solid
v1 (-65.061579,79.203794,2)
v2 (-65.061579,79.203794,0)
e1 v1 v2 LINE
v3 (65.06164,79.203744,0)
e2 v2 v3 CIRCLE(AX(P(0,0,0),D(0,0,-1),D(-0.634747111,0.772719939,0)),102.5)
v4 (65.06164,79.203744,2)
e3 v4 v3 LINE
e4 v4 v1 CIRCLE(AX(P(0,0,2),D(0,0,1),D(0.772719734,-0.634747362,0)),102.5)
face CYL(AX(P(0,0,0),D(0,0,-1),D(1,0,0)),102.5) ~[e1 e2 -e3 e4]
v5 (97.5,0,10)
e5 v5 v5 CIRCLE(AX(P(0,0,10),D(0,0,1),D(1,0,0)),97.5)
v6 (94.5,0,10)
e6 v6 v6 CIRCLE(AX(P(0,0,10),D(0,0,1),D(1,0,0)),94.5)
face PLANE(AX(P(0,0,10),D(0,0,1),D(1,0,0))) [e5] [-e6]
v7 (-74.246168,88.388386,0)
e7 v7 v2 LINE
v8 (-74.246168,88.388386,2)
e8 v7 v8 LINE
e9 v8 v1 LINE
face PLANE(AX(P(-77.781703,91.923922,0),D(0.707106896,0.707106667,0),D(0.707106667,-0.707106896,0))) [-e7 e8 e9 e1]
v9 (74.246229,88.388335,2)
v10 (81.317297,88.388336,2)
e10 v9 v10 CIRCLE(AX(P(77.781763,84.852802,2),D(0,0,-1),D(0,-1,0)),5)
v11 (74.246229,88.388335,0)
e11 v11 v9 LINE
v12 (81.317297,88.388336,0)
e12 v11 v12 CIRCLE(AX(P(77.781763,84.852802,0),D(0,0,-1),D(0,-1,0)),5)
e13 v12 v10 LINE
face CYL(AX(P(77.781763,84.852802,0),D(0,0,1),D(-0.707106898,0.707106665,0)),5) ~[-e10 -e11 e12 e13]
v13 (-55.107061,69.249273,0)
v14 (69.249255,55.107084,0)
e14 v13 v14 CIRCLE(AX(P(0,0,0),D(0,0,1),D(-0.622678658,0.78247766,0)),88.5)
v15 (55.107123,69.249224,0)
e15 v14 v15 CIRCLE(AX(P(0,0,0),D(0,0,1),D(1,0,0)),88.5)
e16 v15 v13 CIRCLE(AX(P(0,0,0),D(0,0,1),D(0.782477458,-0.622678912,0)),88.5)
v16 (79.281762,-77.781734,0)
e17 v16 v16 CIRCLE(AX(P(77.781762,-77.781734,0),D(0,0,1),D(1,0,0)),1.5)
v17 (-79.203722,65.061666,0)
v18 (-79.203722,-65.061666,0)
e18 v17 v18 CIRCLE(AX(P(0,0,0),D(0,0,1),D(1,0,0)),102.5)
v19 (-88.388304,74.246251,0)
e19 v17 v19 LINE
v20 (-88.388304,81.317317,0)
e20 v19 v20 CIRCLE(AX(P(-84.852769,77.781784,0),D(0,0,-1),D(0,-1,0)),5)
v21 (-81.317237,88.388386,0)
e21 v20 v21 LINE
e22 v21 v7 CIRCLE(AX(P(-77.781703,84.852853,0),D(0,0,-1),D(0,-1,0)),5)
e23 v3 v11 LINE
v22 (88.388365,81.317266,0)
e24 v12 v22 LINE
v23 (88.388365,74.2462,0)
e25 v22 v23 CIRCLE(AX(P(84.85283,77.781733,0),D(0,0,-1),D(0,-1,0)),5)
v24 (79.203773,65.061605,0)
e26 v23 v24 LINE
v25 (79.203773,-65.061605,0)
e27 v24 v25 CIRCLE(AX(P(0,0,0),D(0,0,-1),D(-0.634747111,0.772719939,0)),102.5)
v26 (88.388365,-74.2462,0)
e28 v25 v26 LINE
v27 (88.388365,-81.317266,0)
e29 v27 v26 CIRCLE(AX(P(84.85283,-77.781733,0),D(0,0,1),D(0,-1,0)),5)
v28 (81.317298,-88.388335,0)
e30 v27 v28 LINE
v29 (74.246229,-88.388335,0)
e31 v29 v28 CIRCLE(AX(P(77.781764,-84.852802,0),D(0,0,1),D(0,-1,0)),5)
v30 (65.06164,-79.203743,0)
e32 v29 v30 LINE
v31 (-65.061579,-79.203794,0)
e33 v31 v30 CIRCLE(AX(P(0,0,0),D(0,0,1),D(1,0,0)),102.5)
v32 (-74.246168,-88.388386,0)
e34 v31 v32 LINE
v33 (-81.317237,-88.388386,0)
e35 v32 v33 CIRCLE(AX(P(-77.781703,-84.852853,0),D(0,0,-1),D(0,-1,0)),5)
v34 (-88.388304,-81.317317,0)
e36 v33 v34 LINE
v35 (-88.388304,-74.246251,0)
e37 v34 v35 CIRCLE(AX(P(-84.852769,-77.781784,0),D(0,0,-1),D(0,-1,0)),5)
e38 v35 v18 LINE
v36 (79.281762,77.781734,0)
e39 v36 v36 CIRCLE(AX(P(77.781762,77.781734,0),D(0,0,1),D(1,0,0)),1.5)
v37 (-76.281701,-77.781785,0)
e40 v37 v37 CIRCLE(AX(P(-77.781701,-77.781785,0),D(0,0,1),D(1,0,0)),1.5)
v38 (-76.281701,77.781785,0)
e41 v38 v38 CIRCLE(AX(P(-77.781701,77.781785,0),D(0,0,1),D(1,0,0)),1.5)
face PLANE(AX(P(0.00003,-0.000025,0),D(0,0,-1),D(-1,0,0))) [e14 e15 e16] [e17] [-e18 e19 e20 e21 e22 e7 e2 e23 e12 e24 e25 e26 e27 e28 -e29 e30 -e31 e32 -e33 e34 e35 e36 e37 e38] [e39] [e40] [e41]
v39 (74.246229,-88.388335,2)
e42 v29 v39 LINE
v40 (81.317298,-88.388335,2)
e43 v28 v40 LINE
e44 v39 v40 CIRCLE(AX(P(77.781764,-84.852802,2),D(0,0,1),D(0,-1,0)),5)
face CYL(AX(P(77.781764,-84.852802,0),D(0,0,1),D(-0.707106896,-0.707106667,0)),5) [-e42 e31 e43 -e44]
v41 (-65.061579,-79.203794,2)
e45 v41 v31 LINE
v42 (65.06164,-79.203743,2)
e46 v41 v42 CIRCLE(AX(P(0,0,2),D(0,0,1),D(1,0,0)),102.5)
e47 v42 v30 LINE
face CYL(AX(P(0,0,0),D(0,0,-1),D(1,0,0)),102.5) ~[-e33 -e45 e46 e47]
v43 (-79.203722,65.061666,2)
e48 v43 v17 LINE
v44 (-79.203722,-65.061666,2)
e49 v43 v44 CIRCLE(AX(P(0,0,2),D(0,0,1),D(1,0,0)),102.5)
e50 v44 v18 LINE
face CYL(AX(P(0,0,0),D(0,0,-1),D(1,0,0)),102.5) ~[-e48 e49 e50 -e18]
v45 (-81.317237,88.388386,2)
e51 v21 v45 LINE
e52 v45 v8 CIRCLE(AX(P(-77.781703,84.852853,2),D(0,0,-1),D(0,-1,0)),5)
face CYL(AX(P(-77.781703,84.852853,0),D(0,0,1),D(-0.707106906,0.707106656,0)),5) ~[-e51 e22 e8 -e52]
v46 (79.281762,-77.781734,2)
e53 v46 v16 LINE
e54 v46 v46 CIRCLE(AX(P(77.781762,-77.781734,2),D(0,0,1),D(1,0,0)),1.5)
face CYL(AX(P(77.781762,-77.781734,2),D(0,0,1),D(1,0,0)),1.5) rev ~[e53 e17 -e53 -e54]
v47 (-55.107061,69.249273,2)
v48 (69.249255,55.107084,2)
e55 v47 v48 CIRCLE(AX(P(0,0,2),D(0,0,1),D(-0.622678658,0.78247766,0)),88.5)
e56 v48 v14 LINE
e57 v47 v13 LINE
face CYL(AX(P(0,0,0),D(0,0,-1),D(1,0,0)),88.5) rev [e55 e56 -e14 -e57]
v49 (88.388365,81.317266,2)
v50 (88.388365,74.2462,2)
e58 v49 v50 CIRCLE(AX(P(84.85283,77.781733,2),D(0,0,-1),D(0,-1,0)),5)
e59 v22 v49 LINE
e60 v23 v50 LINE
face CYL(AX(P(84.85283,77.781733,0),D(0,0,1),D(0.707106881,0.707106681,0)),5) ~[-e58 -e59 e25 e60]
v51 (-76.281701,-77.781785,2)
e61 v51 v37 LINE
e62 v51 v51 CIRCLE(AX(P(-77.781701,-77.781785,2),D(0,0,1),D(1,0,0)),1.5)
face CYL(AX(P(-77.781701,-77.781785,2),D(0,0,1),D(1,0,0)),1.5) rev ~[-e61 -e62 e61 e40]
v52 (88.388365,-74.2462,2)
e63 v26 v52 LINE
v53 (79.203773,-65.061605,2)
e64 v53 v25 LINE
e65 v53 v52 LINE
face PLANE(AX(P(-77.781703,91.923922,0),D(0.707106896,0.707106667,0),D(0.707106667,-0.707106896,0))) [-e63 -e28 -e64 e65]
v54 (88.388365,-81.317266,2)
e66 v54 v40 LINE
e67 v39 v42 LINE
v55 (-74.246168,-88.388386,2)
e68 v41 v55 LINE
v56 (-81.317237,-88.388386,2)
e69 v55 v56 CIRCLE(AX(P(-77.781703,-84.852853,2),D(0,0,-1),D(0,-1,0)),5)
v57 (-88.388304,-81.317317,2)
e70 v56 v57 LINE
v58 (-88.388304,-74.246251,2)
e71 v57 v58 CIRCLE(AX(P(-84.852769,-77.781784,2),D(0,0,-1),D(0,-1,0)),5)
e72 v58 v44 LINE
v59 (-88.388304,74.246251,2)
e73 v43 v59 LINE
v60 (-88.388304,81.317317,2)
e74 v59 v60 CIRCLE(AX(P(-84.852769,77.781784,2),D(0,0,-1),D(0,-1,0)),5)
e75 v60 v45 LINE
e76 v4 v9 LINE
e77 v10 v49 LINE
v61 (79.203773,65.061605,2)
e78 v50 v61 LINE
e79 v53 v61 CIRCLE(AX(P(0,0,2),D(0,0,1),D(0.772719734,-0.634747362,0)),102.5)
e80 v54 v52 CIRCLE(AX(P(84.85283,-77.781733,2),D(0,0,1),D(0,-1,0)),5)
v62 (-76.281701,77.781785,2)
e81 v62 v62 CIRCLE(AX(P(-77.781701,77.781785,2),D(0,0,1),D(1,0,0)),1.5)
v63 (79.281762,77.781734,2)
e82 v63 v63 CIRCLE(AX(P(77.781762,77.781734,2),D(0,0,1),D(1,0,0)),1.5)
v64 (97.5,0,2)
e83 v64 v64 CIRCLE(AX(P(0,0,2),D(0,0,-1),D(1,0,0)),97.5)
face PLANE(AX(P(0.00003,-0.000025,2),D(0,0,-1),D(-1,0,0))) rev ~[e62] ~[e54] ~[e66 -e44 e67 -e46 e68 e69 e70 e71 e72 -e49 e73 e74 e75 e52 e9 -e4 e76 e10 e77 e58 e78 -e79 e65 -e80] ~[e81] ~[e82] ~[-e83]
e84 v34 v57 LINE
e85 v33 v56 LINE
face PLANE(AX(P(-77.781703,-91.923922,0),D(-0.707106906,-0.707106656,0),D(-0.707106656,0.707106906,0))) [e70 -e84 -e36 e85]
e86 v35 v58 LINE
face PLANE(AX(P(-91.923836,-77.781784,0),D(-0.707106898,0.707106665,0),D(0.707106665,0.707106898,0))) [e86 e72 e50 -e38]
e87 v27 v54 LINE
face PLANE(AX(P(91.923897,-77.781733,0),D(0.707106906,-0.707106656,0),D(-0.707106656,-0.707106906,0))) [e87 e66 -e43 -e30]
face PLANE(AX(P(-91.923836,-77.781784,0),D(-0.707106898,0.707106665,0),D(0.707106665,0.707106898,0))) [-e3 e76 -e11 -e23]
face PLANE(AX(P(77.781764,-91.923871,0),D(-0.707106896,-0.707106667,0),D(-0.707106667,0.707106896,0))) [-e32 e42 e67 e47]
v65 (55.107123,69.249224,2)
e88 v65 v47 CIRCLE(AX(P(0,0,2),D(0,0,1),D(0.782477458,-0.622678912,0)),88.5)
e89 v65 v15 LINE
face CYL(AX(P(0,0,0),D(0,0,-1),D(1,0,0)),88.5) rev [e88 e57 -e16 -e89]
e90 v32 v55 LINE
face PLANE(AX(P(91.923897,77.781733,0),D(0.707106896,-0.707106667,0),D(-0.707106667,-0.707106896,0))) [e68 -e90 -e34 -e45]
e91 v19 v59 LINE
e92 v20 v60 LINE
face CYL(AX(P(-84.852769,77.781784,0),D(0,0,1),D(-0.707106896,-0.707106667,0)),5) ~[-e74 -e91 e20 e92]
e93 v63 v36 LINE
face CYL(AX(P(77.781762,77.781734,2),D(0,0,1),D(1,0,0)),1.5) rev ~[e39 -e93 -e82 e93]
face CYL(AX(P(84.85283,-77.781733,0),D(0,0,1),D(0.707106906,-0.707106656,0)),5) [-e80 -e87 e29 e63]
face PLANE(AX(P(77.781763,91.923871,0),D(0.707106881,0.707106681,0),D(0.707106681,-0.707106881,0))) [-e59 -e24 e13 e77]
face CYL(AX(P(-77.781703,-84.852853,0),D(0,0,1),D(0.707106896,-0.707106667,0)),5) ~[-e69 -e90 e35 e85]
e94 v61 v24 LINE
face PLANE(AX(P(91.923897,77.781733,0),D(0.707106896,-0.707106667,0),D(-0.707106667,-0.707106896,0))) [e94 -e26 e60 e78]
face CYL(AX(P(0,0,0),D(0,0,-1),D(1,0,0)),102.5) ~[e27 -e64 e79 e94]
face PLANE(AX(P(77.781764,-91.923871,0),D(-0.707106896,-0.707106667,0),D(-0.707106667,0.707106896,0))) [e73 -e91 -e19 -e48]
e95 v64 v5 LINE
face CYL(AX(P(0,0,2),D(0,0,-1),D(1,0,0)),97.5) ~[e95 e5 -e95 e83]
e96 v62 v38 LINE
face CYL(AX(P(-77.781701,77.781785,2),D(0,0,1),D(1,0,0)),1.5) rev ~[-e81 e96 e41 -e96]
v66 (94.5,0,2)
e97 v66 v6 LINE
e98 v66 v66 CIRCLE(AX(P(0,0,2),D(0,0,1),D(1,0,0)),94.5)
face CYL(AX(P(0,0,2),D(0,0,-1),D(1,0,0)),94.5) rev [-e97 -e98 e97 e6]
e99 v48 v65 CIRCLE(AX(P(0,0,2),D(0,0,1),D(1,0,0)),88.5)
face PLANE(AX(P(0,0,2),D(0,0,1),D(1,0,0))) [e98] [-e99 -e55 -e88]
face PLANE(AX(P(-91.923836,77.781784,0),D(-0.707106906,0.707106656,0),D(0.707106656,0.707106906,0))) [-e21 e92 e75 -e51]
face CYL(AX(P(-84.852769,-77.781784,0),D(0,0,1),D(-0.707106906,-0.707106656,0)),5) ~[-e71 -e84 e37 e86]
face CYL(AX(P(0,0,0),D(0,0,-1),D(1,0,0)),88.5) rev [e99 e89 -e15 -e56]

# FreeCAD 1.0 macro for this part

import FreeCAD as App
import Part
import Sketcher
Q = App.Units.Quantity


def edges_at(feature, points):
    """Names of the edges that pass closest to the given points."""
    edges = feature.Shape.Edges
    near = lambda p: min(range(len(edges)), key=lambda i: edges[i].distToShape(Part.Vertex(*p))[0])
    return sorted({f"Edge{near(p) + 1}" for p in points})

doc = App.newDocument("Part")
body = doc.addObject("PartDesign::Body", "Body")

sketch1 = body.newObject("Sketcher::SketchObject", "Sketch")
sketch1.AttachmentSupport = (doc.getObject("XY_Plane"), [""])
sketch1.MapMode = "FlatFace"
sketch1.addGeometry(Part.Circle(App.Vector(0, 0, 0), App.Vector(0, 0, 1), 102), False)
sketch1.addGeometry(Part.Circle(App.Vector(0, 0, 0), App.Vector(0, 0, 1), 88), False)
sketch1.addConstraint(Sketcher.Constraint("Coincident", 0, 3, -1, 1))
sketch1.addConstraint(Sketcher.Constraint("Coincident", 1, 3, -1, 1))
sketch1.addConstraint(Sketcher.Constraint("Diameter", 0, Q("205 mm")))
sketch1.addConstraint(Sketcher.Constraint("Diameter", 1, Q("177 mm")))
pad1 = body.newObject("PartDesign::Pad", "Pad")
pad1.Profile = sketch1
pad1.Length = 2

sketch2 = body.newObject("Sketcher::SketchObject", "Sketch001")
sketch2.AttachmentSupport = (doc.getObject("XY_Plane"), [""])
sketch2.MapMode = "FlatFace"
sketch2.AttachmentOffset = App.Placement(App.Vector(0, 0, 2), App.Rotation())
sketch2.addGeometry(Part.Circle(App.Vector(0, 0, 0), App.Vector(0, 0, 1), 98), False)
sketch2.addGeometry(Part.Circle(App.Vector(0, 0, 0), App.Vector(0, 0, 1), 94), False)
sketch2.addConstraint(Sketcher.Constraint("Coincident", 0, 3, -1, 1))
sketch2.addConstraint(Sketcher.Constraint("Coincident", 1, 3, -1, 1))
sketch2.addConstraint(Sketcher.Constraint("Diameter", 0, Q("195 mm")))
sketch2.addConstraint(Sketcher.Constraint("Diameter", 1, Q("189 mm")))
pad2 = body.newObject("PartDesign::Pad", "Pad001")
pad2.Profile = sketch2
pad2.Length = 8

sketch3 = body.newObject("Sketcher::SketchObject", "Sketch002")
sketch3.AttachmentSupport = (doc.getObject("XY_Plane"), [""])
sketch3.MapMode = "FlatFace"
sketch3.addGeometry(Part.LineSegment(App.Vector(-77.781703, 91.923922, 0), App.Vector(-91.923836, 77.781784, 0)), False)
sketch3.addGeometry(Part.LineSegment(App.Vector(-91.923836, 77.781784, 0), App.Vector(77.781764, -91.923871, 0)), False)
sketch3.addGeometry(Part.LineSegment(App.Vector(77.781764, -91.923871, 0), App.Vector(91.923897, -77.781733, 0)), False)
sketch3.addGeometry(Part.LineSegment(App.Vector(91.923897, -77.781733, 0), App.Vector(-77.781703, 91.923922, 0)), False)
sketch3.addConstraint(Sketcher.Constraint("Coincident", 0, 2, 1, 1))
sketch3.addConstraint(Sketcher.Constraint("Coincident", 1, 2, 2, 1))
sketch3.addConstraint(Sketcher.Constraint("Coincident", 2, 2, 3, 1))
sketch3.addConstraint(Sketcher.Constraint("Coincident", 3, 2, 0, 1))
sketch3.addConstraint(Sketcher.Constraint("Distance", 0, Q("20 mm")))
sketch3.addConstraint(Sketcher.Constraint("Distance", 1, Q("240 mm")))
sketch3.addConstraint(Sketcher.Constraint("Distance", 2, Q("20 mm")))
sketch3.addConstraint(Sketcher.Constraint("Distance", 3, Q("240 mm")))
sketch3.addConstraint(Sketcher.Constraint("DistanceX", 0, 2, 1, 2, Q("169.7056 mm")))
sketch3.addConstraint(Sketcher.Constraint("DistanceY", 1, 2, -1, 1, Q("91.923871 mm")))
sketch3.addConstraint(Sketcher.Constraint("DistanceY", 1, 2, 2, 2, Q("14.142138 mm")))
sketch3.addConstraint(Sketcher.Constraint("DistanceX", 0, 2, -1, 1, Q("91.923836 mm")))
pad3 = body.newObject("PartDesign::Pad", "Pad002")
pad3.Profile = sketch3
pad3.Length = 2

sketch4 = body.newObject("Sketcher::SketchObject", "Sketch003")
sketch4.AttachmentSupport = (doc.getObject("XY_Plane"), [""])
sketch4.MapMode = "FlatFace"
sketch4.addGeometry(Part.LineSegment(App.Vector(91.923897, 77.781733, 0), App.Vector(77.781763, 91.923871, 0)), False)
sketch4.addGeometry(Part.LineSegment(App.Vector(77.781763, 91.923871, 0), App.Vector(-91.923836, -77.781784, 0)), False)
sketch4.addGeometry(Part.LineSegment(App.Vector(-91.923836, -77.781784, 0), App.Vector(-77.781703, -91.923922, 0)), False)
sketch4.addGeometry(Part.LineSegment(App.Vector(-77.781703, -91.923922, 0), App.Vector(91.923897, 77.781733, 0)), False)
sketch4.addConstraint(Sketcher.Constraint("Coincident", 0, 2, 1, 1))
sketch4.addConstraint(Sketcher.Constraint("Coincident", 1, 2, 2, 1))
sketch4.addConstraint(Sketcher.Constraint("Coincident", 2, 2, 3, 1))
sketch4.addConstraint(Sketcher.Constraint("Coincident", 3, 2, 0, 1))
sketch4.addConstraint(Sketcher.Constraint("Distance", 0, Q("20.000001 mm")))
sketch4.addConstraint(Sketcher.Constraint("Distance", 1, Q("239.999999 mm")))
sketch4.addConstraint(Sketcher.Constraint("Distance", 2, Q("20 mm")))
sketch4.addConstraint(Sketcher.Constraint("Distance", 3, Q("240 mm")))
sketch4.addConstraint(Sketcher.Constraint("DistanceX", 1, 2, 0, 2, Q("169.705599 mm")))
sketch4.addConstraint(Sketcher.Constraint("DistanceY", -1, 1, 0, 2, Q("91.923871 mm")))
sketch4.addConstraint(Sketcher.Constraint("DistanceY", 2, 2, 1, 2, Q("14.142138 mm")))
sketch4.addConstraint(Sketcher.Constraint("DistanceX", -1, 1, 0, 2, Q("77.781763 mm")))
pad4 = body.newObject("PartDesign::Pad", "Pad003")
pad4.Profile = sketch4
pad4.Length = 2

sketch5 = body.newObject("Sketcher::SketchObject", "Sketch004")
sketch5.AttachmentSupport = (doc.getObject("XY_Plane"), [""])
sketch5.MapMode = "FlatFace"
sketch5.AttachmentOffset = App.Placement(App.Vector(0, 0, 2), App.Rotation())
sketch5.addGeometry(Part.Circle(App.Vector(77.8, -77.8, 0), App.Vector(0, 0, 1), 1.5), False)
sketch5.addGeometry(Part.Circle(App.Vector(-77.8, -77.8, 0), App.Vector(0, 0, 1), 1.5), False)
sketch5.addGeometry(Part.Circle(App.Vector(-77.8, 77.8, 0), App.Vector(0, 0, 1), 1.5), False)
sketch5.addGeometry(Part.Circle(App.Vector(77.8, 77.8, 0), App.Vector(0, 0, 1), 1.5), False)
sketch5.addConstraint(Sketcher.Constraint("Equal", 0, 1))
sketch5.addConstraint(Sketcher.Constraint("Equal", 1, 2))
sketch5.addConstraint(Sketcher.Constraint("Equal", 2, 3))
sketch5.addConstraint(Sketcher.Constraint("Symmetric", 1, 3, 2, 3, -1))
sketch5.addConstraint(Sketcher.Constraint("Symmetric", 0, 3, 3, 3, -1))
sketch5.addConstraint(Sketcher.Constraint("Diameter", 0, Q("3 mm")))
sketch5.addConstraint(Sketcher.Constraint("DistanceX", 1, 3, -1, 1, Q("77.781701 mm")))
sketch5.addConstraint(Sketcher.Constraint("DistanceX", -1, 1, 0, 3, Q("77.781762 mm")))
sketch5.addConstraint(Sketcher.Constraint("DistanceY", 1, 3, 2, 3, Q("155.56357 mm")))
sketch5.addConstraint(Sketcher.Constraint("DistanceY", 0, 3, 2, 3, Q("155.563519 mm")))
pocket1 = body.newObject("PartDesign::Pocket", "Pocket")
pocket1.Profile = sketch5
pocket1.Length = 2

sketch6 = body.newObject("Sketcher::SketchObject", "Sketch005")
sketch6.AttachmentSupport = (doc.getObject("XY_Plane"), [""])
sketch6.MapMode = "FlatFace"
sketch6.AttachmentOffset = App.Placement(App.Vector(0, 0, 2), App.Rotation())
sketch6.addGeometry(Part.Circle(App.Vector(0, 0, 0), App.Vector(0, 0, 1), 88), False)
sketch6.addConstraint(Sketcher.Constraint("Coincident", 0, 3, -1, 1))
sketch6.addConstraint(Sketcher.Constraint("Diameter", 0, Q("177 mm")))
pocket2 = body.newObject("PartDesign::Pocket", "Pocket001")
pocket2.Profile = sketch6
pocket2.Length = 2
doc.recompute()

fillet = body.newObject("PartDesign::Fillet", "Fillet")
fillet.Base = (pocket2, edges_at(pocket2, [(91.924, -77.782, 1), (77.782, -91.924, 1)]))
fillet.Radius = 5
doc.recompute()

fillet2 = body.newObject("PartDesign::Fillet", "Fillet001")
fillet2.Base = (fillet, edges_at(fillet, [(-77.782, -91.924, 1)]))
fillet2.Radius = 5
doc.recompute()

fillet3 = body.newObject("PartDesign::Fillet", "Fillet002")
fillet3.Base = (fillet2, edges_at(fillet2, [(-91.924, -77.782, 1)]))
fillet3.Radius = 5
doc.recompute()

fillet4 = body.newObject("PartDesign::Fillet", "Fillet003")
fillet4.Base = (fillet3, edges_at(fillet3, [
    (91.924, 77.782, 1),
    (77.782, 91.924, 1),
    (-77.782, 91.924, 1),
    (-91.924, 77.782, 1),
]))
fillet4.Radius = 5

doc.recompute()
